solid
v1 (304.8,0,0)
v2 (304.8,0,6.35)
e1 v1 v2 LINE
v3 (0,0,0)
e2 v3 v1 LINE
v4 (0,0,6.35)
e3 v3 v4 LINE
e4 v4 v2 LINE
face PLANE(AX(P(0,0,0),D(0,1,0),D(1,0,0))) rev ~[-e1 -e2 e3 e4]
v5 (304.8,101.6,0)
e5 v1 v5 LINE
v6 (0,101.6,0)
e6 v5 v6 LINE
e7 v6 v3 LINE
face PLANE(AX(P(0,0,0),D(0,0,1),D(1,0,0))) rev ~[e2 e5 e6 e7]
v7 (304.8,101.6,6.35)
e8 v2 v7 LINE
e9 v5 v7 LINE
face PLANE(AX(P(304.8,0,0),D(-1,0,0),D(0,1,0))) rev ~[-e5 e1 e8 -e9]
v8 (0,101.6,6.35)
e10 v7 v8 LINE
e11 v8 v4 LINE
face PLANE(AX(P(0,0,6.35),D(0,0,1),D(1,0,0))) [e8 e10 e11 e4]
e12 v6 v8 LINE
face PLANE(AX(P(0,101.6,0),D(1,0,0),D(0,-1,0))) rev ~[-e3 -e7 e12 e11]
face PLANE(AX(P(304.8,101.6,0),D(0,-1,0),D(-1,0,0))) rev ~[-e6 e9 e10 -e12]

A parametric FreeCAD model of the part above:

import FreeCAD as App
import Part
import Sketcher

V = App.Vector
Q = App.Units.Quantity


def add_polygon(sketch, points):
    """Adds a closed chain of lines whose ends are joined by coincident constraints."""
    first, n = sketch.GeometryCount, len(points)
    for a, b in zip(points, points[1:] + points[:1]):
        sketch.addGeometry(Part.LineSegment(App.Vector(*a, 0), App.Vector(*b, 0)), False)
    for i in range(n):
        sketch.addConstraint(Sketcher.Constraint("Coincident", first + i, 2, first + (i + 1) % n, 1))

doc = App.newDocument("Part")
body = doc.addObject("PartDesign::Body", "Body")

sketch1 = doc.addObject("Sketcher::SketchObject", "Sketch")
body.addObject(sketch1)
sketch1.AttachmentSupport = (doc.XY_Plane, [""])
sketch1.MapMode = "FlatFace"
add_polygon(sketch1, [(0, 102), (0, 0), (305, 0), (305, 102)])
sketch1.addConstraint([
    Sketcher.Constraint("Vertical", 0),
    Sketcher.Constraint("Horizontal", 1),
    Sketcher.Constraint("Vertical", 2),
    Sketcher.Constraint("Horizontal", 3),
    Sketcher.Constraint("Coincident", 0, 2, -1, 1),
    Sketcher.Constraint("DistanceX", 1, 1, 1, 2, Q("12 in")),
    Sketcher.Constraint("DistanceY", 0, 2, 0, 1, Q("4 in")),
])
pad1 = doc.addObject("PartDesign::Pad", "Pad")
body.addObject(pad1)
pad1.Profile = sketch1
pad1.Length = Q("0.25 in")

doc.recompute()
